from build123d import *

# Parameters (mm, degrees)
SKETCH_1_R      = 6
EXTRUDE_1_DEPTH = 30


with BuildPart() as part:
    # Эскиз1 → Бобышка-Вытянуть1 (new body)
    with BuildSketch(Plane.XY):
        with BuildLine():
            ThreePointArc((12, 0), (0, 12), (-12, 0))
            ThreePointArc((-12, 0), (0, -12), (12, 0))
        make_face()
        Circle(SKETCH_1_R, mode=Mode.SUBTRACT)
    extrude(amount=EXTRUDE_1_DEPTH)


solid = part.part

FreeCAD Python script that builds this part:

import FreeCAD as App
import Part
import Sketcher

doc = App.newDocument("Part")
body = doc.addObject("PartDesign::Body", "Body")

sketch1 = doc.addObject("Sketcher::SketchObject", "Sketch")
body.addObject(sketch1)
sketch1.AttachmentSupport = (doc.XY_Plane, [""])
sketch1.MapMode = "FlatFace"
sketch1.addGeometry(Part.Circle(App.Vector(0, 0, 0), App.Vector(0, 0, 1), 12), False)
sketch1.addGeometry(Part.Circle(App.Vector(0, 0, 0), App.Vector(0, 0, 1), 6), False)
sketch1.addConstraint(Sketcher.Constraint("Coincident", 0, 3, -1, 1))
sketch1.addConstraint(Sketcher.Constraint("Coincident", 1, 3, -1, 1))
sketch1.addConstraint(Sketcher.Constraint("Diameter", 0, 24.0))
sketch1.addConstraint(Sketcher.Constraint("Diameter", 1, 12.0))
pad1 = doc.addObject("PartDesign::Pad", "Pad")
body.addObject(pad1)
pad1.Profile = sketch1
pad1.Length = 30

doc.recompute()
